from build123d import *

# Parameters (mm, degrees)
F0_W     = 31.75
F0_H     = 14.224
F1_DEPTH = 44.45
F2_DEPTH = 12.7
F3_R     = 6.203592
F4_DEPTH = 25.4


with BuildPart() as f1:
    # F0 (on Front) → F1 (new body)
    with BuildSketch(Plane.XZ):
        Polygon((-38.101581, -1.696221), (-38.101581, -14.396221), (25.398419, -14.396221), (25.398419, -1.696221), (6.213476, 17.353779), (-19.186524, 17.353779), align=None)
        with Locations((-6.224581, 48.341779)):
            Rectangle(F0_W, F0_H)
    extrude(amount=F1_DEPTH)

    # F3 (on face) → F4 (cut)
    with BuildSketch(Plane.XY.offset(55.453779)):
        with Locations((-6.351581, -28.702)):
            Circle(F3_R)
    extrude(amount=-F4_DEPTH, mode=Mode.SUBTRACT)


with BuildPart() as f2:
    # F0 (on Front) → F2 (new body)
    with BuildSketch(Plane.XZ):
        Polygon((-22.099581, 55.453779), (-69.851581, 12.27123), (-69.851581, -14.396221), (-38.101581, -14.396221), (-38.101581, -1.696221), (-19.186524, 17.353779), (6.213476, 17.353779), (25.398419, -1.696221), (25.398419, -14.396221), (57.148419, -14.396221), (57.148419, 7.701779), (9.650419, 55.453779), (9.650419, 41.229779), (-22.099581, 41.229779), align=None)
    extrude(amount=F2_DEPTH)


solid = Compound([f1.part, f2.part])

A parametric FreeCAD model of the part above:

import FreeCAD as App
import Part
import Sketcher
Q = App.Units.Quantity

doc = App.newDocument("Part")
params = doc.addObject("Spreadsheet::Sheet", "Params")
for row, (alias, value) in enumerate([
    ("sketch1_width", "1 in"),
    ("sketch1_width2", "2.5 in"),
    ("sketch1_height", "0.5 in"),
    ("sketch1_width3", "1.25 in"),
    ("sketch1_height2", "0.56 in"),
    ("pad1_length", "1.75 in"),
    ("pocket1_length", "1 in"),
    ("sketch3_width", "1 in"),
    ("sketch3_height", "0.5 in"),
    ("sketch3_width2", "1.25 in"),
    ("sketch3_height2", "0.87 in"),
    ("sketch3_height3", "0.56 in"),
    ("pad2_length", "0.5 in"),
], start=1):
    params.set(f"A{row}", alias)
    params.set(f"B{row}", "=" + value)
    params.setAlias(f"B{row}", alias)

body = doc.addObject("PartDesign::Body", "Body")
body.AllowCompound = True

sketch1 = doc.addObject("Sketcher::SketchObject", "Sketch")
body.addObject(sketch1)
sketch1.AttachmentSupport = (doc.XZ_Plane, [""])
sketch1.MapMode = "FlatFace"
sketch1.addGeometry([
    Part.LineSegment(App.Vector(-38, -2, 0), App.Vector(-38, -14, 0)),
    Part.LineSegment(App.Vector(-38, -14, 0), App.Vector(25, -14, 0)),
    Part.LineSegment(App.Vector(25, -14, 0), App.Vector(25, -2, 0)),
    Part.LineSegment(App.Vector(25, -2, 0), App.Vector(6, 17, 0)),
    Part.LineSegment(App.Vector(6, 17, 0), App.Vector(-19, 17, 0)),
    Part.LineSegment(App.Vector(-19, 17, 0), App.Vector(-38, -2, 0)),
    Part.LineSegment(App.Vector(-22, 55, 0), App.Vector(-22, 41, 0)),
    Part.LineSegment(App.Vector(-22, 41, 0), App.Vector(10, 41, 0)),
    Part.LineSegment(App.Vector(10, 41, 0), App.Vector(10, 55, 0)),
    Part.LineSegment(App.Vector(10, 55, 0), App.Vector(-22, 55, 0)),
], False)
sketch1.addConstraint([
    Sketcher.Constraint("Coincident", 0, 2, 1, 1),
    Sketcher.Constraint("Coincident", 1, 2, 2, 1),
    Sketcher.Constraint("Coincident", 2, 2, 3, 1),
    Sketcher.Constraint("Coincident", 3, 2, 4, 1),
    Sketcher.Constraint("Coincident", 4, 2, 5, 1),
    Sketcher.Constraint("Coincident", 5, 2, 0, 1),
    Sketcher.Constraint("Coincident", 6, 2, 7, 1),
    Sketcher.Constraint("Coincident", 7, 2, 8, 1),
    Sketcher.Constraint("Coincident", 8, 2, 9, 1),
    Sketcher.Constraint("Coincident", 9, 2, 6, 1),
    Sketcher.Constraint("Vertical", 0),
    Sketcher.Constraint("Horizontal", 1),
    Sketcher.Constraint("Vertical", 2),
    Sketcher.Constraint("Horizontal", 4),
    Sketcher.Constraint("Vertical", 6),
    Sketcher.Constraint("Horizontal", 7),
    Sketcher.Constraint("Vertical", 8),
    Sketcher.Constraint("Horizontal", 9),
    Sketcher.Constraint("Horizontal", 2, 2, 5, 2),
    Sketcher.Constraint("DistanceX", 4, 2, 4, 1, Q("1 in")),
    Sketcher.Constraint("DistanceX", 1, 1, 1, 2, Q("2.5 in")),
    Sketcher.Constraint("DistanceY", 0, 2, 0, 1, Q("0.5 in")),
    Sketcher.Constraint("DistanceX", 7, 1, 7, 2, Q("1.25 in")),
    Sketcher.Constraint("DistanceY", 6, 2, 6, 1, Q("0.56 in")),
    Sketcher.Constraint("DistanceY", 3, 2, 8, 2, Q("1.5 in")),
    Sketcher.Constraint("DistanceY", 2, 2, 3, 2, Q("0.75 in")),
    Sketcher.Constraint("DistanceX", 5, 2, 6, 2, Q("0.63 in")),
    Sketcher.Constraint("Distance", 5, Q("26.845519 mm")),
    Sketcher.Constraint("DistanceX", 0, 2, -1, 1, Q("38.101581 mm")),
    Sketcher.Constraint("DistanceY", 0, 2, -1, 1, Q("14.396221 mm")),
])
sketch1.setExpression("Constraints[19]", "Params.sketch1_width")
sketch1.setExpression("Constraints[20]", "Params.sketch1_width2")
sketch1.setExpression("Constraints[21]", "Params.sketch1_height")
sketch1.setExpression("Constraints[22]", "Params.sketch1_width3")
sketch1.setExpression("Constraints[23]", "Params.sketch1_height2")
pad1 = doc.addObject("PartDesign::Pad", "Pad")
body.addObject(pad1)
pad1.Profile = sketch1
pad1.setExpression("Length", "Params.pad1_length")

sketch2 = doc.addObject("Sketcher::SketchObject", "Sketch001")
body.addObject(sketch2)
sketch2.AttachmentSupport = (doc.XY_Plane, [""])
sketch2.MapMode = "FlatFace"
sketch2.AttachmentOffset = App.Placement(App.Vector(0, 0, 55.453779), App.Rotation())
sketch2.addGeometry(Part.Circle(App.Vector(-6, -29, 0), App.Vector(0, 0, 1), 6), False)
sketch2.addConstraint([
    Sketcher.Constraint("DistanceY", 0, 3, -1, 1, Q("1.13 in")),
    Sketcher.Constraint("Diameter", 0, Q("12.407184 mm")),
    Sketcher.Constraint("DistanceX", 0, 3, -1, 1, Q("6.351581 mm")),
])
pocket1 = doc.addObject("PartDesign::Pocket", "Pocket")
body.addObject(pocket1)
pocket1.Profile = sketch2
pocket1.setExpression("Length", "Params.pocket1_length")
body2 = doc.addObject("PartDesign::Body", "Body001")

sketch3 = doc.addObject("Sketcher::SketchObject", "Sketch002")
body2.addObject(sketch3)
sketch3.AttachmentSupport = (doc.getObject("XZ_Plane001"), [""])
sketch3.MapMode = "FlatFace"
sketch3.addGeometry([
    Part.LineSegment(App.Vector(-22, 55, 0), App.Vector(-70, 12, 0)),
    Part.LineSegment(App.Vector(-70, 12, 0), App.Vector(-70, -14, 0)),
    Part.LineSegment(App.Vector(-70, -14, 0), App.Vector(-38, -14, 0)),
    Part.LineSegment(App.Vector(-38, -14, 0), App.Vector(-38, -2, 0)),
    Part.LineSegment(App.Vector(-38, -2, 0), App.Vector(-19, 17, 0)),
    Part.LineSegment(App.Vector(-19, 17, 0), App.Vector(6, 17, 0)),
    Part.LineSegment(App.Vector(6, 17, 0), App.Vector(25, -2, 0)),
    Part.LineSegment(App.Vector(25, -2, 0), App.Vector(25, -14, 0)),
    Part.LineSegment(App.Vector(25, -14, 0), App.Vector(57, -14, 0)),
    Part.LineSegment(App.Vector(57, -14, 0), App.Vector(57, 8, 0)),
    Part.LineSegment(App.Vector(57, 8, 0), App.Vector(10, 55, 0)),
    Part.LineSegment(App.Vector(10, 55, 0), App.Vector(10, 41, 0)),
    Part.LineSegment(App.Vector(10, 41, 0), App.Vector(-22, 41, 0)),
    Part.LineSegment(App.Vector(-22, 41, 0), App.Vector(-22, 55, 0)),
], False)
sketch3.addConstraint([
    Sketcher.Constraint("Coincident", 0, 2, 1, 1),
    Sketcher.Constraint("Coincident", 1, 2, 2, 1),
    Sketcher.Constraint("Coincident", 2, 2, 3, 1),
    Sketcher.Constraint("Coincident", 3, 2, 4, 1),
    Sketcher.Constraint("Coincident", 4, 2, 5, 1),
    Sketcher.Constraint("Coincident", 5, 2, 6, 1),
    Sketcher.Constraint("Coincident", 6, 2, 7, 1),
    Sketcher.Constraint("Coincident", 7, 2, 8, 1),
    Sketcher.Constraint("Coincident", 8, 2, 9, 1),
    Sketcher.Constraint("Coincident", 9, 2, 10, 1),
    Sketcher.Constraint("Coincident", 10, 2, 11, 1),
    Sketcher.Constraint("Coincident", 11, 2, 12, 1),
    Sketcher.Constraint("Coincident", 12, 2, 13, 1),
    Sketcher.Constraint("Coincident", 13, 2, 0, 1),
    Sketcher.Constraint("Vertical", 1),
    Sketcher.Constraint("Horizontal", 2),
    Sketcher.Constraint("Vertical", 3),
    Sketcher.Constraint("Horizontal", 5),
    Sketcher.Constraint("Vertical", 7),
    Sketcher.Constraint("Horizontal", 8),
    Sketcher.Constraint("Vertical", 9),
    Sketcher.Constraint("Vertical", 11),
    Sketcher.Constraint("Horizontal", 12),
    Sketcher.Constraint("Vertical", 13),
    Sketcher.Constraint("Horizontal", 3, 2, 6, 2),
    Sketcher.Constraint("Horizontal", 2, 2, 7, 2),
    Sketcher.Constraint("Horizontal", 10, 2, 13, 2),
    Sketcher.Constraint("Equal", 2, 8),
    Sketcher.Constraint("Equal", 8, 12),
    Sketcher.Constraint("DistanceX", 5, 1, 5, 2, Q("1 in")),
    Sketcher.Constraint("DistanceY", 3, 1, 3, 2, Q("0.5 in")),
    Sketcher.Constraint("DistanceX", 2, 1, 2, 2, Q("1.25 in")),
    Sketcher.Constraint("DistanceY", 9, 1, 9, 2, Q("0.87 in")),
    Sketcher.Constraint("DistanceY", 11, 2, 11, 1, Q("0.56 in")),
    Sketcher.Constraint("DistanceX", 3, 2, 6, 2, Q("2.5 in")),
    Sketcher.Constraint("DistanceY", 5, 2, 10, 2, Q("1.5 in")),
    Sketcher.Constraint("DistanceY", 3, 2, 4, 2, Q("0.75 in")),
    Sketcher.Constraint("DistanceX", 10, 2, 6, 2, Q("0.62 in")),
    Sketcher.Constraint("DistanceY", 1, 2, 1, 1, Q("26.667451 mm")),
    Sketcher.Constraint("Distance", 4, Q("26.845519 mm")),
    Sketcher.Constraint("DistanceX", 0, 2, -1, 1, Q("69.851581 mm")),
    Sketcher.Constraint("DistanceY", -1, 1, 0, 2, Q("12.27123 mm")),
])
sketch3.setExpression("Constraints[29]", "Params.sketch3_width")
sketch3.setExpression("Constraints[30]", "Params.sketch3_height")
sketch3.setExpression("Constraints[31]", "Params.sketch3_width2")
sketch3.setExpression("Constraints[32]", "Params.sketch3_height2")
sketch3.setExpression("Constraints[33]", "Params.sketch3_height3")
pad2 = doc.addObject("PartDesign::Pad", "Pad001")
body2.addObject(pad2)
pad2.Profile = sketch3
pad2.setExpression("Length", "Params.pad2_length")

doc.recompute()
